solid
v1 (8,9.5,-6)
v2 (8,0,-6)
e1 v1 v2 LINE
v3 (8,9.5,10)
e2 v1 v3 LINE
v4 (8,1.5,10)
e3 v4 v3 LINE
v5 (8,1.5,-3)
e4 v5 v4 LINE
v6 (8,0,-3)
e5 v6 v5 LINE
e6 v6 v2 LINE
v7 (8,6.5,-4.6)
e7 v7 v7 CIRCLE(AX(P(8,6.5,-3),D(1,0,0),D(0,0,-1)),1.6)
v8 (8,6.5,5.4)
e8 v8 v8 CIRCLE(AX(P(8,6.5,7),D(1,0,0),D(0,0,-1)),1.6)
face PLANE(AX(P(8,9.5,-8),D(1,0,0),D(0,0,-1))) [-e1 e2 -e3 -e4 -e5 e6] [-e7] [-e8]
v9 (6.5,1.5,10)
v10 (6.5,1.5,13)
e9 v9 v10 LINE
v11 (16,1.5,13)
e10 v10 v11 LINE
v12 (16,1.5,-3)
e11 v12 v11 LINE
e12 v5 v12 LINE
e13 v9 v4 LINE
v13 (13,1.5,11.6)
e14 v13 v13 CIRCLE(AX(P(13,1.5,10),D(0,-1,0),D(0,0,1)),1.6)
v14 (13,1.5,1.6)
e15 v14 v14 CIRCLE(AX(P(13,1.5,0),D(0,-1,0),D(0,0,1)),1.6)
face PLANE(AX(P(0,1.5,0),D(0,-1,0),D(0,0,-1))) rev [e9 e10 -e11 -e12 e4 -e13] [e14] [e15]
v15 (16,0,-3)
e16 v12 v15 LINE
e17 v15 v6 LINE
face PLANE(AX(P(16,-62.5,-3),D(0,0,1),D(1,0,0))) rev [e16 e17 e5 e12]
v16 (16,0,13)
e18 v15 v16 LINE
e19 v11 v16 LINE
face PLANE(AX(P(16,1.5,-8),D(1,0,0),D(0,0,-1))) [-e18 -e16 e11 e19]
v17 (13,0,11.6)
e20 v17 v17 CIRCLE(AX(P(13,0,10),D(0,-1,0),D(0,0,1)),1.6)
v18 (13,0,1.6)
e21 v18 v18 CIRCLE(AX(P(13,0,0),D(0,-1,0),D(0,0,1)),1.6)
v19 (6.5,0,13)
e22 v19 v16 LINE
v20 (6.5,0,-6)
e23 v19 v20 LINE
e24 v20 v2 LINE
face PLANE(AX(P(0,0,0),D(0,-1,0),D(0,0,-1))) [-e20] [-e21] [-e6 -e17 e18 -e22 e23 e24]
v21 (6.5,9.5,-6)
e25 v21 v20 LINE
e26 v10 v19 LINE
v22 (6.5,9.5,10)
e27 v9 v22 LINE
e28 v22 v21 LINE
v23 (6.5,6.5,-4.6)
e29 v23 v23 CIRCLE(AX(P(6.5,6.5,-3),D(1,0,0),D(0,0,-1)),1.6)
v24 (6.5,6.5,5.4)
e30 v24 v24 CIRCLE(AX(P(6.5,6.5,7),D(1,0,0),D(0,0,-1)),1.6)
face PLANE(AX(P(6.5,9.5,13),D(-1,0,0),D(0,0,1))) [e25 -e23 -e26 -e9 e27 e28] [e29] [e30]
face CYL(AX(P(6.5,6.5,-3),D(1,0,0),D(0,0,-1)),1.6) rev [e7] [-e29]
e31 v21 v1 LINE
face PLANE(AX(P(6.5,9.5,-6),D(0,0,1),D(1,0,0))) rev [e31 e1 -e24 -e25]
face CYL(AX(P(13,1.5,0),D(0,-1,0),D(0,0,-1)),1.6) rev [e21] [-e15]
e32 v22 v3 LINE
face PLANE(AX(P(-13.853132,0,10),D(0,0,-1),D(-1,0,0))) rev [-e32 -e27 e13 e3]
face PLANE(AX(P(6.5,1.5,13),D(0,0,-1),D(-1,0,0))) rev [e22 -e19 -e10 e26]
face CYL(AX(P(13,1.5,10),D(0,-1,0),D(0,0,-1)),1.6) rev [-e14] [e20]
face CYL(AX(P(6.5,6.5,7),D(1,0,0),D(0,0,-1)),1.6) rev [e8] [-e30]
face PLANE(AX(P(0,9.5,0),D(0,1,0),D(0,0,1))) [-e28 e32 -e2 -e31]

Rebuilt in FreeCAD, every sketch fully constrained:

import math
import FreeCAD as App
import Part
import Sketcher

doc = App.newDocument("Part")
params = doc.addObject("Spreadsheet::Sheet", "Params")
for row, (alias, value) in enumerate([
    ("sketch1_diameter", "3.2 mm"),
    ("sketch1_height", "21 mm"),
    ("sketch1_width", "9.5 mm"),
    ("pad1_length", "1.5 mm"),
    ("sketch2_height", "21 mm"),
    ("sketch2_width", "1.5 mm"),
    ("pad2_length", "8 mm"),
    ("sketch3_diameter", "3.2 mm"),
    ("pocket1_length", "8 mm"),
    ("sketch4_width", "8 mm"),
    ("sketch4_height", "5 mm"),
    ("pocket2_length", "8 mm"),
    ("sketch5_width", "8 mm"),
    ("sketch5_height", "5 mm"),
    ("pocket3_length", "8 mm"),
    ("pocket4_length", "64 mm"),
    ("sketch7_width", "8 mm"),
    ("sketch7_height", "5 mm"),
    ("pocket5_length", "64 mm"),
    ("sketch8_width", "8 mm"),
    ("sketch8_height", "5 mm"),
    ("pocket6_length", "64 mm"),
    ("sketch9_diameter", "3.2 mm"),
    ("pocket7_length", "1.5 mm"),
    ("sketch10_radius", "1.6 mm"),
    ("sketch10_width", "8 mm"),
    ("sketch10_height", "13 mm"),
    ("sketch10_height2", "5 mm"),
    ("sketch10_width2", "1.5 mm"),
    ("pad3_length", "1.5 mm"),
    ("sketch11_height", "2 mm"),
    ("sketch11_width", "9.5 mm"),
    ("pocket8_length", "1.5 mm"),
], start=1):
    params.set(f"A{row}", alias)
    params.set(f"B{row}", "=" + value)
    params.setAlias(f"B{row}", alias)

body = doc.addObject("PartDesign::Body", "Body")

# Sketch on XZ plane
sketch1 = doc.addObject("Sketcher::SketchObject", "Sketch")
body.addObject(sketch1)
sketch1.AttachmentSupport = (doc.XZ_Plane, [""])
sketch1.MapMode = "FlatFace"
sketch1.addGeometry(Part.LineSegment(App.Vector(-3, -8, 0), App.Vector(-3, 13, 0)), False)
sketch1.addGeometry(Part.LineSegment(App.Vector(-3, 13, 0), App.Vector(6.5, 13, 0)), False)
sketch1.addGeometry(Part.LineSegment(App.Vector(6.5, 13, 0), App.Vector(6.5, -8, 0)), False)
sketch1.addGeometry(Part.LineSegment(App.Vector(6.5, -8, 0), App.Vector(-3, -8, 0)), False)
sketch1.addGeometry(Part.Circle(App.Vector(0, 10, 0), App.Vector(0, 0, 1), 1.6), False)
sketch1.addGeometry(Part.Circle(App.Vector(0, 0, 0), App.Vector(0, 0, 1), 1.6), False)
sketch1.addConstraint(Sketcher.Constraint("Coincident", 0, 2, 1, 1))
sketch1.addConstraint(Sketcher.Constraint("Coincident", 1, 2, 2, 1))
sketch1.addConstraint(Sketcher.Constraint("Coincident", 2, 2, 3, 1))
sketch1.addConstraint(Sketcher.Constraint("Coincident", 3, 2, 0, 1))
sketch1.addConstraint(Sketcher.Constraint("Vertical", 0))
sketch1.addConstraint(Sketcher.Constraint("Horizontal", 1))
sketch1.addConstraint(Sketcher.Constraint("Vertical", 2))
sketch1.addConstraint(Sketcher.Constraint("Horizontal", 3))
sketch1.addConstraint(Sketcher.Constraint("Coincident", 5, 3, -1, 1))
sketch1.addConstraint(Sketcher.Constraint("Equal", 4, 5))
sketch1.addConstraint(Sketcher.Constraint("PointOnObject", 4, 3, -2))
sketch1.addConstraint(Sketcher.Constraint("Diameter", 4, 3.2))
sketch1.addConstraint(Sketcher.Constraint("DistanceY", 0, 1, 0, 2, 21.0))
sketch1.addConstraint(Sketcher.Constraint("DistanceX", 1, 1, 1, 2, 9.5))
sketch1.addConstraint(Sketcher.Constraint("DistanceY", -1, 1, 4, 3, 10.0))
sketch1.addConstraint(Sketcher.Constraint("DistanceX", 0, 2, -1, 1, 3.0))
sketch1.addConstraint(Sketcher.Constraint("DistanceY", -1, 1, 0, 2, 13.0))
sketch1.setExpression("Constraints[11]", "Params.sketch1_diameter")
sketch1.setExpression("Constraints[12]", "Params.sketch1_height")
sketch1.setExpression("Constraints[13]", "Params.sketch1_width")
pad1 = doc.addObject("PartDesign::Pad", "Pad")
body.addObject(pad1)
pad1.Profile = sketch1
pad1.setExpression("Length", "Params.pad1_length")
pad1.Reversed = True

# Sketch on XZ plane
sketch2 = doc.addObject("Sketcher::SketchObject", "Sketch001")
body.addObject(sketch2)
sketch2.AttachmentSupport = (doc.XZ_Plane, [""])
sketch2.MapMode = "FlatFace"
sketch2.AttachmentOffset = App.Placement(App.Vector(0, 0, -1.5), App.Rotation())
sketch2.addGeometry(Part.LineSegment(App.Vector(5, -8, 0), App.Vector(5, 13, 0)), False)
sketch2.addGeometry(Part.LineSegment(App.Vector(5, 13, 0), App.Vector(6.5, 13, 0)), False)
sketch2.addGeometry(Part.LineSegment(App.Vector(6.5, 13, 0), App.Vector(6.5, -8, 0)), False)
sketch2.addGeometry(Part.LineSegment(App.Vector(6.5, -8, 0), App.Vector(5, -8, 0)), False)
sketch2.addConstraint(Sketcher.Constraint("Coincident", 0, 2, 1, 1))
sketch2.addConstraint(Sketcher.Constraint("Coincident", 1, 2, 2, 1))
sketch2.addConstraint(Sketcher.Constraint("Coincident", 2, 2, 3, 1))
sketch2.addConstraint(Sketcher.Constraint("Coincident", 3, 2, 0, 1))
sketch2.addConstraint(Sketcher.Constraint("Vertical", 0))
sketch2.addConstraint(Sketcher.Constraint("Horizontal", 1))
sketch2.addConstraint(Sketcher.Constraint("Vertical", 2))
sketch2.addConstraint(Sketcher.Constraint("Horizontal", 3))
sketch2.addConstraint(Sketcher.Constraint("DistanceY", 0, 1, 0, 2, 21.0))
sketch2.addConstraint(Sketcher.Constraint("DistanceX", 1, 1, 1, 2, 1.5))
sketch2.addConstraint(Sketcher.Constraint("DistanceX", -1, 1, 0, 2, 5.0))
sketch2.addConstraint(Sketcher.Constraint("DistanceY", -1, 1, 0, 2, 13.0))
sketch2.setExpression("Constraints[8]", "Params.sketch2_height")
sketch2.setExpression("Constraints[9]", "Params.sketch2_width")
pad2 = doc.addObject("PartDesign::Pad", "Pad001")
body.addObject(pad2)
pad2.Profile = sketch2
pad2.setExpression("Length", "Params.pad2_length")
pad2.Reversed = True

# Sketch on YZ plane
sketch3 = doc.addObject("Sketcher::SketchObject", "Sketch002")
body.addObject(sketch3)
sketch3.AttachmentSupport = (doc.YZ_Plane, [""])
sketch3.MapMode = "FlatFace"
sketch3.AttachmentOffset = App.Placement(App.Vector(0, 0, 5), App.Rotation())
sketch3.addGeometry(Part.Circle(App.Vector(6.5, -5, 0), App.Vector(0, 0, 1), 1.6), False)
sketch3.addGeometry(Part.Circle(App.Vector(6.5, 5, 0), App.Vector(0, 0, 1), 1.6), False)
sketch3.addConstraint(Sketcher.Constraint("Equal", 0, 1))
sketch3.addConstraint(Sketcher.Constraint("Symmetric", 0, 3, 1, 3, -1))
sketch3.addConstraint(Sketcher.Constraint("Diameter", 0, 3.2))
sketch3.addConstraint(Sketcher.Constraint("DistanceY", 0, 3, -1, 1, 5.0))
sketch3.addConstraint(Sketcher.Constraint("DistanceX", -1, 1, 0, 3, 6.5))
sketch3.setExpression("Constraints[2]", "Params.sketch3_diameter")
pocket1 = doc.addObject("PartDesign::Pocket", "Pocket")
body.addObject(pocket1)
pocket1.Profile = sketch3
pocket1.setExpression("Length", "Params.pocket1_length")
pocket1.Reversed = True

# Sketch on YZ plane
sketch4 = doc.addObject("Sketcher::SketchObject", "Sketch003")
body.addObject(sketch4)
sketch4.AttachmentSupport = (doc.YZ_Plane, [""])
sketch4.MapMode = "FlatFace"
sketch4.AttachmentOffset = App.Placement(App.Vector(0, 0, 5), App.Rotation())
sketch4.addGeometry(Part.LineSegment(App.Vector(10, 8, 0), App.Vector(2, 8, 0)), False)
sketch4.addGeometry(Part.LineSegment(App.Vector(2, 8, 0), App.Vector(2, 13, 0)), False)
sketch4.addGeometry(Part.LineSegment(App.Vector(2, 13, 0), App.Vector(10, 13, 0)), False)
sketch4.addGeometry(Part.LineSegment(App.Vector(10, 13, 0), App.Vector(10, 8, 0)), False)
sketch4.addConstraint(Sketcher.Constraint("Coincident", 0, 2, 1, 1))
sketch4.addConstraint(Sketcher.Constraint("Coincident", 1, 2, 2, 1))
sketch4.addConstraint(Sketcher.Constraint("Coincident", 2, 2, 3, 1))
sketch4.addConstraint(Sketcher.Constraint("Coincident", 3, 2, 0, 1))
sketch4.addConstraint(Sketcher.Constraint("Horizontal", 0))
sketch4.addConstraint(Sketcher.Constraint("Vertical", 1))
sketch4.addConstraint(Sketcher.Constraint("Horizontal", 2))
sketch4.addConstraint(Sketcher.Constraint("Vertical", 3))
sketch4.addConstraint(Sketcher.Constraint("DistanceX", 0, 2, 0, 1, 8.0))
sketch4.addConstraint(Sketcher.Constraint("DistanceY", 1, 1, 1, 2, 5.0))
sketch4.addConstraint(Sketcher.Constraint("DistanceY", -1, 1, 0, 2, 8.0))
sketch4.addConstraint(Sketcher.Constraint("DistanceX", -1, 1, 0, 2, 1.5))
sketch4.setExpression("Constraints[8]", "Params.sketch4_width")
sketch4.setExpression("Constraints[9]", "Params.sketch4_height")
pocket2 = doc.addObject("PartDesign::Pocket", "Pocket001")
body.addObject(pocket2)
pocket2.Profile = sketch4
pocket2.setExpression("Length", "Params.pocket2_length")
pocket2.Reversed = True

# Sketch on XZ plane
sketch5 = doc.addObject("Sketcher::SketchObject", "Sketch004")
body.addObject(sketch5)
sketch5.AttachmentSupport = (doc.XZ_Plane, [""])
sketch5.MapMode = "FlatFace"
sketch5.AttachmentOffset = App.Placement(App.Vector(0, 0, -1.5), App.Rotation())
sketch5.addGeometry(Part.LineSegment(App.Vector(-3, -8, 0), App.Vector(-3, -3, 0)), False)
sketch5.addGeometry(Part.LineSegment(App.Vector(-3, -3, 0), App.Vector(5, -3, 0)), False)
sketch5.addGeometry(Part.LineSegment(App.Vector(5, -3, 0), App.Vector(5, -8, 0)), False)
sketch5.addGeometry(Part.LineSegment(App.Vector(5, -8, 0), App.Vector(-3, -8, 0)), False)
sketch5.addConstraint(Sketcher.Constraint("Coincident", 0, 2, 1, 1))
sketch5.addConstraint(Sketcher.Constraint("Coincident", 1, 2, 2, 1))
sketch5.addConstraint(Sketcher.Constraint("Coincident", 2, 2, 3, 1))
sketch5.addConstraint(Sketcher.Constraint("Coincident", 3, 2, 0, 1))
sketch5.addConstraint(Sketcher.Constraint("Vertical", 0))
sketch5.addConstraint(Sketcher.Constraint("Horizontal", 1))
sketch5.addConstraint(Sketcher.Constraint("Vertical", 2))
sketch5.addConstraint(Sketcher.Constraint("Horizontal", 3))
sketch5.addConstraint(Sketcher.Constraint("DistanceX", 1, 1, 1, 2, 8.0))
sketch5.addConstraint(Sketcher.Constraint("DistanceY", 0, 1, 0, 2, 5.0))
sketch5.addConstraint(Sketcher.Constraint("DistanceX", 0, 2, -1, 1, 3.0))
sketch5.addConstraint(Sketcher.Constraint("DistanceY", 0, 2, -1, 1, 3.0))
sketch5.setExpression("Constraints[8]", "Params.sketch5_width")
sketch5.setExpression("Constraints[9]", "Params.sketch5_height")
pocket3 = doc.addObject("PartDesign::Pocket", "Pocket002")
body.addObject(pocket3)
pocket3.Profile = sketch5
pocket3.setExpression("Length", "Params.pocket3_length")
pocket3.Reversed = True
doc.recompute()

datumplane = doc.addObject("PartDesign::Plane", "DatumPlane")
body.addObject(datumplane)
datumplane.AttachmentSupport = (doc.YZ_Plane, [""])
datumplane.MapMode = "FlatFace"
datumplane.AttachmentOffset = App.Placement(App.Vector(0, 0, 6.5), App.Rotation())
mirrored = doc.addObject("PartDesign::Mirrored", "Mirrored")
body.addObject(mirrored)
mirrored.Originals = [pad1, pad2, pocket1]
mirrored.MirrorPlane = (datumplane, [""])
body.Tip = mirrored

# Sketch on YZ plane
sketch6 = doc.addObject("Sketcher::SketchObject", "Sketch005")
body.addObject(sketch6)
sketch6.AttachmentSupport = (doc.YZ_Plane, [""])
sketch6.MapMode = "FlatFace"
sketch6.AttachmentOffset = App.Placement(App.Vector(0, 0, 6.5), App.Rotation())
sketch6.addGeometry(Part.Circle(App.Vector(2, 8, 0), App.Vector(0, 0, 1), 46), False)
sketch6.addConstraint(Sketcher.Constraint("DistanceY", -1, 1, 0, 3, 8.0))
sketch6.addConstraint(Sketcher.Constraint("DistanceX", -1, 1, 0, 3, 1.5))
sketch6.addConstraint(Sketcher.Constraint("Diameter", 0, 92.960188))
pocket4 = doc.addObject("PartDesign::Pocket", "Pocket003")
body.addObject(pocket4)
pocket4.Profile = sketch6
pocket4.setExpression("Length", "Params.pocket4_length")

# Sketch on YZ plane
sketch7 = doc.addObject("Sketcher::SketchObject", "Sketch006")
body.addObject(sketch7)
sketch7.AttachmentSupport = (doc.YZ_Plane, [""])
sketch7.MapMode = "FlatFace"
sketch7.AttachmentOffset = App.Placement(App.Vector(0, 0, 8), App.Rotation())
sketch7.addGeometry(Part.LineSegment(App.Vector(10, 13, 0), App.Vector(2, 13, 0)), False)
sketch7.addGeometry(Part.LineSegment(App.Vector(2, 13, 0), App.Vector(2, 8, 0)), False)
sketch7.addGeometry(Part.LineSegment(App.Vector(2, 8, 0), App.Vector(10, 8, 0)), False)
sketch7.addGeometry(Part.LineSegment(App.Vector(10, 8, 0), App.Vector(10, 13, 0)), False)
sketch7.addConstraint(Sketcher.Constraint("Coincident", 0, 2, 1, 1))
sketch7.addConstraint(Sketcher.Constraint("Coincident", 1, 2, 2, 1))
sketch7.addConstraint(Sketcher.Constraint("Coincident", 2, 2, 3, 1))
sketch7.addConstraint(Sketcher.Constraint("Coincident", 3, 2, 0, 1))
sketch7.addConstraint(Sketcher.Constraint("Horizontal", 0))
sketch7.addConstraint(Sketcher.Constraint("Vertical", 1))
sketch7.addConstraint(Sketcher.Constraint("Horizontal", 2))
sketch7.addConstraint(Sketcher.Constraint("Vertical", 3))
sketch7.addConstraint(Sketcher.Constraint("DistanceX", 0, 2, 0, 1, 8.0))
sketch7.addConstraint(Sketcher.Constraint("DistanceY", 1, 2, 1, 1, 5.0))
sketch7.addConstraint(Sketcher.Constraint("DistanceY", -1, 1, 0, 2, 13.0))
sketch7.addConstraint(Sketcher.Constraint("DistanceX", -1, 1, 0, 2, 1.5))
sketch7.setExpression("Constraints[8]", "Params.sketch7_width")
sketch7.setExpression("Constraints[9]", "Params.sketch7_height")
pocket5 = doc.addObject("PartDesign::Pocket", "Pocket004")
body.addObject(pocket5)
pocket5.Profile = sketch7
pocket5.setExpression("Length", "Params.pocket5_length")

# Sketch on XZ plane
sketch8 = doc.addObject("Sketcher::SketchObject", "Sketch007")
body.addObject(sketch8)
sketch8.AttachmentSupport = (doc.XZ_Plane, [""])
sketch8.MapMode = "FlatFace"
sketch8.AttachmentOffset = App.Placement(App.Vector(0, 0, -1.5), App.Rotation())
sketch8.addGeometry(Part.LineSegment(App.Vector(8, -8, 0), App.Vector(8, -3, 0)), False)
sketch8.addGeometry(Part.LineSegment(App.Vector(8, -3, 0), App.Vector(16, -3, 0)), False)
sketch8.addGeometry(Part.LineSegment(App.Vector(16, -3, 0), App.Vector(16, -8, 0)), False)
sketch8.addGeometry(Part.LineSegment(App.Vector(16, -8, 0), App.Vector(8, -8, 0)), False)
sketch8.addConstraint(Sketcher.Constraint("Coincident", 0, 2, 1, 1))
sketch8.addConstraint(Sketcher.Constraint("Coincident", 1, 2, 2, 1))
sketch8.addConstraint(Sketcher.Constraint("Coincident", 2, 2, 3, 1))
sketch8.addConstraint(Sketcher.Constraint("Coincident", 3, 2, 0, 1))
sketch8.addConstraint(Sketcher.Constraint("Vertical", 0))
sketch8.addConstraint(Sketcher.Constraint("Horizontal", 1))
sketch8.addConstraint(Sketcher.Constraint("Vertical", 2))
sketch8.addConstraint(Sketcher.Constraint("Horizontal", 3))
sketch8.addConstraint(Sketcher.Constraint("DistanceX", 1, 1, 1, 2, 8.0))
sketch8.addConstraint(Sketcher.Constraint("DistanceY", 0, 1, 0, 2, 5.0))
sketch8.addConstraint(Sketcher.Constraint("DistanceX", -1, 1, 0, 2, 8.0))
sketch8.addConstraint(Sketcher.Constraint("DistanceY", 0, 2, -1, 1, 3.0))
sketch8.setExpression("Constraints[8]", "Params.sketch8_width")
sketch8.setExpression("Constraints[9]", "Params.sketch8_height")
pocket6 = doc.addObject("PartDesign::Pocket", "Pocket005")
body.addObject(pocket6)
pocket6.Profile = sketch8
pocket6.setExpression("Length", "Params.pocket6_length")
pocket6.Reversed = True

# Sketch on YZ plane
sketch9 = doc.addObject("Sketcher::SketchObject", "Sketch008")
body.addObject(sketch9)
sketch9.AttachmentSupport = (doc.YZ_Plane, [""])
sketch9.MapMode = "FlatFace"
sketch9.AttachmentOffset = App.Placement(App.Vector(0, 0, 8), App.Rotation())
sketch9.addGeometry(Part.Circle(App.Vector(6.5, 7, 0), App.Vector(0, 0, 1), 1.6), False)
sketch9.addGeometry(Part.Circle(App.Vector(6.5, -3, 0), App.Vector(0, 0, 1), 1.6), False)
sketch9.addConstraint(Sketcher.Constraint("Equal", 0, 1))
sketch9.addConstraint(Sketcher.Constraint("Vertical", 0, 3, 1, 3))
sketch9.addConstraint(Sketcher.Constraint("Diameter", 0, 3.2))
sketch9.addConstraint(Sketcher.Constraint("DistanceY", -1, 1, 0, 3, 7.0))
sketch9.addConstraint(Sketcher.Constraint("DistanceY", 1, 3, -1, 1, 3.0))
sketch9.addConstraint(Sketcher.Constraint("DistanceX", -1, 1, 0, 3, 6.5))
sketch9.setExpression("Constraints[2]", "Params.sketch9_diameter")
pocket7 = doc.addObject("PartDesign::Pocket", "Pocket006")
body.addObject(pocket7)
pocket7.Profile = sketch9
pocket7.setExpression("Length", "Params.pocket7_length")

# Sketch on YZ plane
sketch10 = doc.addObject("Sketcher::SketchObject", "Sketch009")
body.addObject(sketch10)
sketch10.AttachmentSupport = (doc.YZ_Plane, [""])
sketch10.MapMode = "FlatFace"
sketch10.AttachmentOffset = App.Placement(App.Vector(0, 0, 8), App.Rotation())
sketch10.addGeometry(Part.LineSegment(App.Vector(1.5, 10, 0), App.Vector(1.5, -3, 0)), False)
sketch10.addGeometry(Part.LineSegment(App.Vector(1.5, -3, 0), App.Vector(0, -3, 0)), False)
sketch10.addGeometry(Part.LineSegment(App.Vector(0, -3, 0), App.Vector(0, -8, 0)), False)
sketch10.addGeometry(Part.LineSegment(App.Vector(0, -8, 0), App.Vector(9.5, -8, 0)), False)
sketch10.addGeometry(Part.LineSegment(App.Vector(9.5, -8, 0), App.Vector(9.5, 10, 0)), False)
sketch10.addGeometry(Part.LineSegment(App.Vector(9.5, 10, 0), App.Vector(1.5, 10, 0)), False)
sketch10.addGeometry(Part.ArcOfCircle(Part.Circle(App.Vector(6.5, 7, 0), App.Vector(0, 0, 1), 1.6), math.radians(39), math.radians(141)), False)
sketch10.addGeometry(Part.ArcOfCircle(Part.Circle(App.Vector(6.5, 7, 0), App.Vector(0, 0, 1), 1.6), math.radians(-39), math.radians(39)), False)
sketch10.addGeometry(Part.ArcOfCircle(Part.Circle(App.Vector(6.5, 7, 0), App.Vector(0, 0, 1), 1.6), math.radians(-90), math.radians(-39)), False)
sketch10.addGeometry(Part.ArcOfCircle(Part.Circle(App.Vector(6.5, 7, 0), App.Vector(0, 0, 1), 1.6), math.radians(-141), math.radians(-90)), False)
sketch10.addGeometry(Part.ArcOfCircle(Part.Circle(App.Vector(6.5, 7, 0), App.Vector(0, 0, 1), 1.6), math.radians(141), math.radians(219)), False)
sketch10.addGeometry(Part.ArcOfCircle(Part.Circle(App.Vector(6.5, -3, 0), App.Vector(0, 0, 1), 1.6), math.radians(-39), math.radians(219)), False)
sketch10.addGeometry(Part.ArcOfCircle(Part.Circle(App.Vector(6.5, -3, 0), App.Vector(0, 0, 1), 1.6), math.radians(-141), math.radians(-39)), False)
sketch10.addConstraint(Sketcher.Constraint("Coincident", 0, 2, 1, 1))
sketch10.addConstraint(Sketcher.Constraint("Coincident", 1, 2, 2, 1))
sketch10.addConstraint(Sketcher.Constraint("Coincident", 2, 2, 3, 1))
sketch10.addConstraint(Sketcher.Constraint("Coincident", 3, 2, 4, 1))
sketch10.addConstraint(Sketcher.Constraint("Coincident", 4, 2, 5, 1))
sketch10.addConstraint(Sketcher.Constraint("Coincident", 5, 2, 0, 1))
sketch10.addConstraint(Sketcher.Constraint("Tangent", 6, 1, 7, 2))
sketch10.addConstraint(Sketcher.Constraint("Tangent", 7, 1, 8, 2))
sketch10.addConstraint(Sketcher.Constraint("Tangent", 8, 1, 9, 2))
sketch10.addConstraint(Sketcher.Constraint("Tangent", 9, 1, 10, 2))
sketch10.addConstraint(Sketcher.Constraint("Tangent", 10, 1, 6, 2))
sketch10.addConstraint(Sketcher.Constraint("Tangent", 11, 1, 12, 2))
sketch10.addConstraint(Sketcher.Constraint("Coincident", 12, 1, 11, 2))
sketch10.addConstraint(Sketcher.Constraint("Vertical", 0))
sketch10.addConstraint(Sketcher.Constraint("Horizontal", 1))
sketch10.addConstraint(Sketcher.Constraint("Vertical", 2))
sketch10.addConstraint(Sketcher.Constraint("Horizontal", 3))
sketch10.addConstraint(Sketcher.Constraint("Vertical", 4))
sketch10.addConstraint(Sketcher.Constraint("Horizontal", 5))
sketch10.addConstraint(Sketcher.Constraint("Coincident", 8, 3, 6, 3))
sketch10.addConstraint(Sketcher.Constraint("Equal", 10, 11))
sketch10.addConstraint(Sketcher.Constraint("PointOnObject", 1, 2, -2))
sketch10.addConstraint(Sketcher.Constraint("Horizontal", 12, 3, 0, 2))
sketch10.addConstraint(Sketcher.Constraint("Horizontal", 7, 1, 9, 1))
sketch10.addConstraint(Sketcher.Constraint("Horizontal", 6, 1, 10, 1))
sketch10.addConstraint(Sketcher.Constraint("Horizontal", 11, 1, 12, 1))
sketch10.addConstraint(Sketcher.Constraint("Vertical", 10, 3, 11, 3))
sketch10.addConstraint(Sketcher.Constraint("Vertical", 6, 1, 7, 1))
sketch10.addConstraint(Sketcher.Constraint("Vertical", 12, 3, 8, 1))
sketch10.addConstraint(Sketcher.Constraint("Vertical", 7, 1, 11, 1))
sketch10.addConstraint(Sketcher.Constraint("Radius", 6, 1.6))
sketch10.addConstraint(Sketcher.Constraint("DistanceX", 5, 2, 5, 1, 8.0))
sketch10.addConstraint(Sketcher.Constraint("DistanceY", 0, 2, 0, 1, 13.0))
sketch10.addConstraint(Sketcher.Constraint("DistanceY", 2, 2, 2, 1, 5.0))
sketch10.addConstraint(Sketcher.Constraint("DistanceX", 1, 2, 1, 1, 1.5))
sketch10.addConstraint(Sketcher.Constraint("DistanceY", -1, 1, 6, 3, 7.0))
sketch10.addConstraint(Sketcher.Constraint("DistanceY", 11, 3, -1, 1, 3.0))
sketch10.addConstraint(Sketcher.Constraint("DistanceY", -1, 1, 6, 1, 8.0))
sketch10.addConstraint(Sketcher.Constraint("DistanceX", 0, 2, 11, 3, 5.0))
sketch10.setExpression("Constraints[30]", "Params.sketch10_radius")
sketch10.setExpression("Constraints[31]", "Params.sketch10_width")
sketch10.setExpression("Constraints[32]", "Params.sketch10_height")
sketch10.setExpression("Constraints[33]", "Params.sketch10_height2")
sketch10.setExpression("Constraints[34]", "Params.sketch10_width2")
pad3 = doc.addObject("PartDesign::Pad", "Pad002")
body.addObject(pad3)
pad3.Profile = sketch10
pad3.setExpression("Length", "Params.pad3_length")
pad3.Reversed = True

# Sketch on YZ plane
sketch11 = doc.addObject("Sketcher::SketchObject", "Sketch010")
body.addObject(sketch11)
sketch11.AttachmentSupport = (doc.YZ_Plane, [""])
sketch11.MapMode = "FlatFace"
sketch11.AttachmentOffset = App.Placement(App.Vector(0, 0, 8), App.Rotation())
sketch11.addGeometry(Part.LineSegment(App.Vector(9.5, -6, 0), App.Vector(0, -6, 0)), False)
sketch11.addGeometry(Part.LineSegment(App.Vector(0, -6, 0), App.Vector(0, -8, 0)), False)
sketch11.addGeometry(Part.LineSegment(App.Vector(0, -8, 0), App.Vector(9.5, -8, 0)), False)
sketch11.addGeometry(Part.LineSegment(App.Vector(9.5, -8, 0), App.Vector(9.5, -6, 0)), False)
sketch11.addConstraint(Sketcher.Constraint("Coincident", 0, 2, 1, 1))
sketch11.addConstraint(Sketcher.Constraint("Coincident", 1, 2, 2, 1))
sketch11.addConstraint(Sketcher.Constraint("Coincident", 2, 2, 3, 1))
sketch11.addConstraint(Sketcher.Constraint("Coincident", 3, 2, 0, 1))
sketch11.addConstraint(Sketcher.Constraint("Horizontal", 0))
sketch11.addConstraint(Sketcher.Constraint("Vertical", 1))
sketch11.addConstraint(Sketcher.Constraint("Horizontal", 2))
sketch11.addConstraint(Sketcher.Constraint("Vertical", 3))
sketch11.addConstraint(Sketcher.Constraint("PointOnObject", 0, 2, -2))
sketch11.addConstraint(Sketcher.Constraint("DistanceY", 1, 2, 1, 1, 2.0))
sketch11.addConstraint(Sketcher.Constraint("DistanceX", 0, 2, 0, 1, 9.5))
sketch11.addConstraint(Sketcher.Constraint("DistanceY", 0, 2, -1, 1, 6.0))
sketch11.setExpression("Constraints[9]", "Params.sketch11_height")
sketch11.setExpression("Constraints[10]", "Params.sketch11_width")
pocket8 = doc.addObject("PartDesign::Pocket", "Pocket007")
body.addObject(pocket8)
pocket8.Profile = sketch11
pocket8.setExpression("Length", "Params.pocket8_length")

doc.recompute()
